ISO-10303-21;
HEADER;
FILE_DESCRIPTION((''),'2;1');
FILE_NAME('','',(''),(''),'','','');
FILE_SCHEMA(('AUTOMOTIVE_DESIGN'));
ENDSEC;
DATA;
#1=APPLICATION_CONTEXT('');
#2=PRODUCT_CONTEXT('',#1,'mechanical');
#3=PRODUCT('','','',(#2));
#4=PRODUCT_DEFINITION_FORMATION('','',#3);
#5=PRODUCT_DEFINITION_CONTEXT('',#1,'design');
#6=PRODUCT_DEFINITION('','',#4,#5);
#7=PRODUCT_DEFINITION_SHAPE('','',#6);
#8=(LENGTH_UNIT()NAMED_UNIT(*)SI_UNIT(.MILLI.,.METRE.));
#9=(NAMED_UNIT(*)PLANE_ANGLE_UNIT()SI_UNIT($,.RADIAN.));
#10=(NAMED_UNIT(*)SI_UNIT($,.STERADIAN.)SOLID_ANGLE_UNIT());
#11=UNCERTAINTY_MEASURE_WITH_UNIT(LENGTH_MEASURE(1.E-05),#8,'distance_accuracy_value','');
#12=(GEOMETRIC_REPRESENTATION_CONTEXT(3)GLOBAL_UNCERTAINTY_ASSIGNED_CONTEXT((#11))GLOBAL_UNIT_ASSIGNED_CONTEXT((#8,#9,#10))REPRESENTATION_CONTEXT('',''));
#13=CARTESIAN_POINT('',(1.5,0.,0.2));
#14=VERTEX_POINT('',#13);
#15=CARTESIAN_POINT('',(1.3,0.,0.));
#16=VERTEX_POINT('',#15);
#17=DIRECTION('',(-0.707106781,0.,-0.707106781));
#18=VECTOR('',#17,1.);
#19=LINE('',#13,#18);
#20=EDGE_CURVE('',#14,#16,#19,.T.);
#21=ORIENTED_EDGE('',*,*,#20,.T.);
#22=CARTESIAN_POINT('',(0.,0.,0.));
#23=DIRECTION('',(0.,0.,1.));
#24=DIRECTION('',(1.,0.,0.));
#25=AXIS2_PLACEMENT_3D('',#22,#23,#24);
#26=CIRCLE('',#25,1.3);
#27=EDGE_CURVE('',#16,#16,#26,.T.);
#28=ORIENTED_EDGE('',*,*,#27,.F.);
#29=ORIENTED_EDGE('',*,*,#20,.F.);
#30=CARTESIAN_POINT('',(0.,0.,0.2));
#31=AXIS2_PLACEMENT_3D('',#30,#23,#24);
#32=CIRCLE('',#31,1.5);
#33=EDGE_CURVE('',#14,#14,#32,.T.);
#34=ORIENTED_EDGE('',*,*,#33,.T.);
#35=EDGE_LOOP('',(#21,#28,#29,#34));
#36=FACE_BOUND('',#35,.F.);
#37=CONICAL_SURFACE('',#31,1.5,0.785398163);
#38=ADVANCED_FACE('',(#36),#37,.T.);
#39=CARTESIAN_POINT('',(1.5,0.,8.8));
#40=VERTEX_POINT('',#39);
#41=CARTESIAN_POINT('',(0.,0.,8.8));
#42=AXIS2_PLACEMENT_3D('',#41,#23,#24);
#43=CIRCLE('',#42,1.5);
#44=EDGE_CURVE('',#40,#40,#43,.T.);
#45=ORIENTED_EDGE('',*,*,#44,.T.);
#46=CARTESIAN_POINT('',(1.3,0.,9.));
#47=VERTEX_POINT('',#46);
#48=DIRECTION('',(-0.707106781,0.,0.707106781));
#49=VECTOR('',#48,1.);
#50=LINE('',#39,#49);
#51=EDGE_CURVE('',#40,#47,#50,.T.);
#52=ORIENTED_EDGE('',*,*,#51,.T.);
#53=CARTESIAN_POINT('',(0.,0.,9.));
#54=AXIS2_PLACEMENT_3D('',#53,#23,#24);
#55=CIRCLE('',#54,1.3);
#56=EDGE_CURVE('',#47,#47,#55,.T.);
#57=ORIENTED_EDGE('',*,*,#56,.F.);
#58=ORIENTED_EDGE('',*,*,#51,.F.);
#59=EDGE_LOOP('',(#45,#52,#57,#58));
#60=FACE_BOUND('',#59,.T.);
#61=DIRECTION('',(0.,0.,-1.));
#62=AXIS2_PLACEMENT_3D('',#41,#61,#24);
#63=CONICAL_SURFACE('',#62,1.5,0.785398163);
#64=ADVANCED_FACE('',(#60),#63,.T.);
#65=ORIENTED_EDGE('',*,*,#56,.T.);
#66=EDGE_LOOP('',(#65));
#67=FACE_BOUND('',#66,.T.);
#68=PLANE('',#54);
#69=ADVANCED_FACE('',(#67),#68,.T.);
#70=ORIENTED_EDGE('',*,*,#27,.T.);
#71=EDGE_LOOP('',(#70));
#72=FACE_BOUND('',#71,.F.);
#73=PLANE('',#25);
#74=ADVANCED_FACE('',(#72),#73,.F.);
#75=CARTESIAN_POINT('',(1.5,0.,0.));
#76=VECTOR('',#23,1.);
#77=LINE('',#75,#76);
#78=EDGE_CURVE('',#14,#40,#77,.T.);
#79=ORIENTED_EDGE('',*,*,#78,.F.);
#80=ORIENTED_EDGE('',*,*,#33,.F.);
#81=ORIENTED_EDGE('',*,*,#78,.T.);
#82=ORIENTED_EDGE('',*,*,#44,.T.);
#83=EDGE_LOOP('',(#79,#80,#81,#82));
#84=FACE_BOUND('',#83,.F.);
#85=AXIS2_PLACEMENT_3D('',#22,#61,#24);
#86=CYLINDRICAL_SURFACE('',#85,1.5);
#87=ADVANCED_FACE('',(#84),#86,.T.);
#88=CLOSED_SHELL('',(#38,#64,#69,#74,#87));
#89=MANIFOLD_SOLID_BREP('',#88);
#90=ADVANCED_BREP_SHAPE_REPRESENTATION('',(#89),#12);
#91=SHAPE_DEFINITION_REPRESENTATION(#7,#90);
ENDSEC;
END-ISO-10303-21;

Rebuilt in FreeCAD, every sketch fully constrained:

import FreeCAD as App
import Part
import Sketcher

V = App.Vector


def edges_at(feature, points):
    """Names of the edges that pass closest to the given points."""
    edges = feature.Shape.Edges
    near = lambda p: min(range(len(edges)), key=lambda i: edges[i].distToShape(Part.Vertex(*p))[0])
    return sorted({f"Edge{near(p) + 1}" for p in points})

doc = App.newDocument("Part")
body = doc.addObject("PartDesign::Body", "Body")

# Sketch on XY plane
sketch1 = body.newObject("Sketcher::SketchObject", "Sketch")
sketch1.AttachmentSupport = (doc.getObject("XY_Plane"), [""])
sketch1.MapMode = "FlatFace"
sketch1.addGeometry(Part.Circle(V(0, 0, 0), V(0, 0, 1), 1.5), False)
sketch1.addConstraint([
    Sketcher.Constraint("Coincident", 0, 3, -1, 1),
    Sketcher.Constraint("Diameter", 0, 3.0),
])
pad1 = body.newObject("PartDesign::Pad", "Pad")
pad1.Profile = sketch1
pad1.Length = 9
doc.recompute()

chamfer = body.newObject("PartDesign::Chamfer", "Chamfer")
chamfer.Base = (pad1, edges_at(pad1, [(-1.5, 0, 9), (-1.5, 0, 0)]))
chamfer.Size = 0.2

doc.recompute()
